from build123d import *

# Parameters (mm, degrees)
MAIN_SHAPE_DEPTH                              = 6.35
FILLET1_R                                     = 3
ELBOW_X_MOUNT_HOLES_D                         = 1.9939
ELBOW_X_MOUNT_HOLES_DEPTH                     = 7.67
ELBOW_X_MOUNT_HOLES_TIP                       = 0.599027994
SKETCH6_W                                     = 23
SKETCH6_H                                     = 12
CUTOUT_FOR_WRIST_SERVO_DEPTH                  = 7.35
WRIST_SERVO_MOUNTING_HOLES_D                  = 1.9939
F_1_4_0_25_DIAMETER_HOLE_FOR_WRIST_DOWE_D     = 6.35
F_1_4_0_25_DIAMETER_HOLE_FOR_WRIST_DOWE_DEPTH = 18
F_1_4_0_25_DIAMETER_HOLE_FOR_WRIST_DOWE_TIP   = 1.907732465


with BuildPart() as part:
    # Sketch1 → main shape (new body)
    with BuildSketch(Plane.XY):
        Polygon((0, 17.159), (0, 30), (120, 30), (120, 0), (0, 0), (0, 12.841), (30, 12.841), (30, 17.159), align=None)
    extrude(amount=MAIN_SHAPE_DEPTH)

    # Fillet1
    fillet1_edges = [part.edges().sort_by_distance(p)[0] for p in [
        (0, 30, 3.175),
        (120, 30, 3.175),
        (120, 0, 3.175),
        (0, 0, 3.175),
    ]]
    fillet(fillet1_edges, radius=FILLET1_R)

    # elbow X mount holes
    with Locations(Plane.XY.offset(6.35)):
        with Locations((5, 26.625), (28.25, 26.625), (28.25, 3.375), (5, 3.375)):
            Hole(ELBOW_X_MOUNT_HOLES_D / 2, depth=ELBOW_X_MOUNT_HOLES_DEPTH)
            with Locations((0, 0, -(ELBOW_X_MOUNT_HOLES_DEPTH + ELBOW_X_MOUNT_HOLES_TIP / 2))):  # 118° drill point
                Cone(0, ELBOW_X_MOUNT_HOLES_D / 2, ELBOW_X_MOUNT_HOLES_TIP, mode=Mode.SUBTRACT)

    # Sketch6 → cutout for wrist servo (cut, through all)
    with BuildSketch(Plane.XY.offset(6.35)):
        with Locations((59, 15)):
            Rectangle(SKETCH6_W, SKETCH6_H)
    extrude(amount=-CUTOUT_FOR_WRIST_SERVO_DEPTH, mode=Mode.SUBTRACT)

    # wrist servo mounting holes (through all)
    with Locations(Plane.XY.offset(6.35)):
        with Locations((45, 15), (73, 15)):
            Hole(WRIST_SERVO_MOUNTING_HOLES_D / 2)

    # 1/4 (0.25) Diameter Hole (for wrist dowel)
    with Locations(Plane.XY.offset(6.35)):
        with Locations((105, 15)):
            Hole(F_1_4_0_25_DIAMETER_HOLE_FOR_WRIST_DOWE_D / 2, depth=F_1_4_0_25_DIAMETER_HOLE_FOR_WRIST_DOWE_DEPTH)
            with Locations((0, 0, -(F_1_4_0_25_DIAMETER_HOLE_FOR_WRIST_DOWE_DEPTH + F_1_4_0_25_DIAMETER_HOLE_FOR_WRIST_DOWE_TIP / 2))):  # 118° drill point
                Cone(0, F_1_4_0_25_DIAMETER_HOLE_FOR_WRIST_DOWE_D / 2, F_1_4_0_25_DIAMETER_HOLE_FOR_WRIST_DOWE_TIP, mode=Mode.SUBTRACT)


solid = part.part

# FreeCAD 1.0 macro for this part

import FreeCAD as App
import Part
import Sketcher
from FreeCAD import Vector


def edges_at(feature, points):
    """Names of the edges that pass closest to the given points."""
    edges = feature.Shape.Edges
    near = lambda p: min(range(len(edges)), key=lambda i: edges[i].distToShape(Part.Vertex(*p))[0])
    return sorted({f"Edge{near(p) + 1}" for p in points})

doc = App.newDocument("Part")
body = doc.addObject("PartDesign::Body", "Body")

sketch1 = body.newObject("Sketcher::SketchObject", "Sketch")
sketch1.AttachmentSupport = (doc.getObject("XY_Plane"), [""])
sketch1.MapMode = "FlatFace"
sketch1.addGeometry(Part.LineSegment(Vector(0, 30, 0), Vector(0, 17.2, 0)), False)
sketch1.addGeometry(Part.LineSegment(Vector(0, 17.2, 0), Vector(30, 17.2, 0)), False)
sketch1.addGeometry(Part.LineSegment(Vector(30, 17.2, 0), Vector(30, 12.8, 0)), False)
sketch1.addGeometry(Part.LineSegment(Vector(30, 12.8, 0), Vector(0, 12.8, 0)), False)
sketch1.addGeometry(Part.LineSegment(Vector(0, 12.8, 0), Vector(0, 0, 0)), False)
sketch1.addGeometry(Part.LineSegment(Vector(0, 0, 0), Vector(120, 0, 0)), False)
sketch1.addGeometry(Part.LineSegment(Vector(120, 0, 0), Vector(120, 30, 0)), False)
sketch1.addGeometry(Part.LineSegment(Vector(120, 30, 0), Vector(0, 30, 0)), False)
sketch1.addConstraint(Sketcher.Constraint("Coincident", 0, 2, 1, 1))
sketch1.addConstraint(Sketcher.Constraint("Coincident", 1, 2, 2, 1))
sketch1.addConstraint(Sketcher.Constraint("Coincident", 2, 2, 3, 1))
sketch1.addConstraint(Sketcher.Constraint("Coincident", 3, 2, 4, 1))
sketch1.addConstraint(Sketcher.Constraint("Coincident", 4, 2, 5, 1))
sketch1.addConstraint(Sketcher.Constraint("Coincident", 5, 2, 6, 1))
sketch1.addConstraint(Sketcher.Constraint("Coincident", 6, 2, 7, 1))
sketch1.addConstraint(Sketcher.Constraint("Coincident", 7, 2, 0, 1))
sketch1.addConstraint(Sketcher.Constraint("Vertical", 0))
sketch1.addConstraint(Sketcher.Constraint("Horizontal", 1))
sketch1.addConstraint(Sketcher.Constraint("Vertical", 2))
sketch1.addConstraint(Sketcher.Constraint("Horizontal", 3))
sketch1.addConstraint(Sketcher.Constraint("Vertical", 4))
sketch1.addConstraint(Sketcher.Constraint("Horizontal", 5))
sketch1.addConstraint(Sketcher.Constraint("Vertical", 6))
sketch1.addConstraint(Sketcher.Constraint("Horizontal", 7))
sketch1.addConstraint(Sketcher.Constraint("Coincident", 4, 2, -1, 1))
sketch1.addConstraint(Sketcher.Constraint("PointOnObject", 0, 2, -2))
sketch1.addConstraint(Sketcher.Constraint("Equal", 0, 4))
sketch1.addConstraint(Sketcher.Constraint("Equal", 3, 6))
sketch1.addConstraint(Sketcher.Constraint("DistanceX", 1, 1, 1, 2, 30.0))
sketch1.addConstraint(Sketcher.Constraint("DistanceX", 5, 1, 5, 2, 120.0))
sketch1.addConstraint(Sketcher.Constraint("DistanceY", 0, 2, 0, 1, 12.841))
pad1 = body.newObject("PartDesign::Pad", "Pad")
pad1.Profile = sketch1
pad1.Length = 6.35
doc.recompute()

fillet = body.newObject("PartDesign::Fillet", "Fillet")
fillet.Base = (pad1, edges_at(pad1, [
    (0, 30, 3.175),
    (120, 30, 3.175),
    (120, 0, 3.175),
    (0, 0, 3.175),
]))
fillet.Radius = 3

sketch2 = body.newObject("Sketcher::SketchObject", "Sketch001")
sketch2.AttachmentSupport = (doc.getObject("XY_Plane"), [""])
sketch2.MapMode = "FlatFace"
sketch2.AttachmentOffset = App.Placement(Vector(0, 0, 6.35), App.Rotation())
sketch2.addGeometry(Part.Circle(Vector(5, 26.6, 0), Vector(0, 0, 1), 1), False)
sketch2.addGeometry(Part.Circle(Vector(28.2, 26.6, 0), Vector(0, 0, 1), 1), False)
sketch2.addGeometry(Part.Circle(Vector(28.2, 3.4, 0), Vector(0, 0, 1), 1), False)
sketch2.addGeometry(Part.Circle(Vector(5, 3.4, 0), Vector(0, 0, 1), 1), False)
sketch2.addConstraint(Sketcher.Constraint("Equal", 0, 1))
sketch2.addConstraint(Sketcher.Constraint("Equal", 1, 2))
sketch2.addConstraint(Sketcher.Constraint("Equal", 2, 3))
sketch2.addConstraint(Sketcher.Constraint("Horizontal", 0, 3, 1, 3))
sketch2.addConstraint(Sketcher.Constraint("Horizontal", 2, 3, 3, 3))
sketch2.addConstraint(Sketcher.Constraint("Vertical", 1, 3, 2, 3))
sketch2.addConstraint(Sketcher.Constraint("Vertical", 0, 3, 3, 3))
sketch2.addConstraint(Sketcher.Constraint("DistanceX", -1, 1, 0, 3, 5.0))
sketch2.addConstraint(Sketcher.Constraint("Diameter", 0, 1.9939))
sketch2.addConstraint(Sketcher.Constraint("DistanceX", -1, 1, 1, 3, 28.25))
sketch2.addConstraint(Sketcher.Constraint("DistanceY", 2, 3, 1, 3, 23.25))
sketch2.addConstraint(Sketcher.Constraint("DistanceY", -1, 1, 0, 3, 26.625))
doc.recompute()
hole = body.newObject("PartDesign::Hole", "Hole")
hole.Profile = sketch2
hole.ThreadType = "None"
hole.Diameter = 1.9939
hole.DepthType = "Dimension"
hole.Depth = 7.67
hole.DrillPoint = "Angled"
hole.DrillPointAngle = 118

sketch3 = body.newObject("Sketcher::SketchObject", "Sketch002")
sketch3.AttachmentSupport = (doc.getObject("XY_Plane"), [""])
sketch3.MapMode = "FlatFace"
sketch3.AttachmentOffset = App.Placement(Vector(0, 0, 6.35), App.Rotation())
sketch3.addGeometry(Part.LineSegment(Vector(48, 21, 0), Vector(48, 9, 0)), False)
sketch3.addGeometry(Part.LineSegment(Vector(48, 9, 0), Vector(70, 9, 0)), False)
sketch3.addGeometry(Part.LineSegment(Vector(70, 9, 0), Vector(70, 21, 0)), False)
sketch3.addGeometry(Part.LineSegment(Vector(70, 21, 0), Vector(48, 21, 0)), False)
sketch3.addConstraint(Sketcher.Constraint("Coincident", 0, 2, 1, 1))
sketch3.addConstraint(Sketcher.Constraint("Coincident", 1, 2, 2, 1))
sketch3.addConstraint(Sketcher.Constraint("Coincident", 2, 2, 3, 1))
sketch3.addConstraint(Sketcher.Constraint("Coincident", 3, 2, 0, 1))
sketch3.addConstraint(Sketcher.Constraint("Vertical", 0))
sketch3.addConstraint(Sketcher.Constraint("Horizontal", 1))
sketch3.addConstraint(Sketcher.Constraint("Vertical", 2))
sketch3.addConstraint(Sketcher.Constraint("Horizontal", 3))
sketch3.addConstraint(Sketcher.Constraint("DistanceX", 1, 1, 1, 2, 23.0))
sketch3.addConstraint(Sketcher.Constraint("DistanceY", 0, 2, 0, 1, 12.0))
sketch3.addConstraint(Sketcher.Constraint("DistanceY", -1, 1, 0, 2, 9.0))
sketch3.addConstraint(Sketcher.Constraint("DistanceX", -1, 1, 0, 2, 47.5))
pocket1 = body.newObject("PartDesign::Pocket", "Pocket")
pocket1.Profile = sketch3
pocket1.Type = "ThroughAll"

sketch4 = body.newObject("Sketcher::SketchObject", "Sketch003")
sketch4.AttachmentSupport = (doc.getObject("XY_Plane"), [""])
sketch4.MapMode = "FlatFace"
sketch4.AttachmentOffset = App.Placement(Vector(0, 0, 6.35), App.Rotation())
sketch4.addGeometry(Part.Circle(Vector(45, 15, 0), Vector(0, 0, 1), 1), False)
sketch4.addGeometry(Part.Circle(Vector(73, 15, 0), Vector(0, 0, 1), 1), False)
sketch4.addConstraint(Sketcher.Constraint("Equal", 0, 1))
sketch4.addConstraint(Sketcher.Constraint("Horizontal", 0, 3, 1, 3))
sketch4.addConstraint(Sketcher.Constraint("DistanceX", -1, 1, 0, 3, 45.0))
sketch4.addConstraint(Sketcher.Constraint("DistanceY", -1, 1, 0, 3, 15.0))
sketch4.addConstraint(Sketcher.Constraint("DistanceX", -1, 1, 1, 3, 73.0))
sketch4.addConstraint(Sketcher.Constraint("Diameter", 0, 1.9939))
doc.recompute()
hole2 = body.newObject("PartDesign::Hole", "Hole001")
hole2.Profile = sketch4
hole2.ThreadType = "None"
hole2.Diameter = 1.9939
hole2.DepthType = "ThroughAll"

sketch5 = body.newObject("Sketcher::SketchObject", "Sketch004")
sketch5.AttachmentSupport = (doc.getObject("XY_Plane"), [""])
sketch5.MapMode = "FlatFace"
sketch5.AttachmentOffset = App.Placement(Vector(0, 0, 6.35), App.Rotation())
sketch5.addGeometry(Part.Circle(Vector(105, 15, 0), Vector(0, 0, 1), 3.2), False)
sketch5.addConstraint(Sketcher.Constraint("Diameter", 0, 6.35))
sketch5.addConstraint(Sketcher.Constraint("DistanceX", -1, 1, 0, 3, 105.0))
sketch5.addConstraint(Sketcher.Constraint("DistanceY", -1, 1, 0, 3, 15.0))
doc.recompute()
hole3 = body.newObject("PartDesign::Hole", "Hole002")
hole3.Profile = sketch5
hole3.ThreadType = "None"
hole3.Diameter = 6.35
hole3.DepthType = "Dimension"
hole3.Depth = 18
hole3.DrillPoint = "Angled"
hole3.DrillPointAngle = 118

doc.recompute()
